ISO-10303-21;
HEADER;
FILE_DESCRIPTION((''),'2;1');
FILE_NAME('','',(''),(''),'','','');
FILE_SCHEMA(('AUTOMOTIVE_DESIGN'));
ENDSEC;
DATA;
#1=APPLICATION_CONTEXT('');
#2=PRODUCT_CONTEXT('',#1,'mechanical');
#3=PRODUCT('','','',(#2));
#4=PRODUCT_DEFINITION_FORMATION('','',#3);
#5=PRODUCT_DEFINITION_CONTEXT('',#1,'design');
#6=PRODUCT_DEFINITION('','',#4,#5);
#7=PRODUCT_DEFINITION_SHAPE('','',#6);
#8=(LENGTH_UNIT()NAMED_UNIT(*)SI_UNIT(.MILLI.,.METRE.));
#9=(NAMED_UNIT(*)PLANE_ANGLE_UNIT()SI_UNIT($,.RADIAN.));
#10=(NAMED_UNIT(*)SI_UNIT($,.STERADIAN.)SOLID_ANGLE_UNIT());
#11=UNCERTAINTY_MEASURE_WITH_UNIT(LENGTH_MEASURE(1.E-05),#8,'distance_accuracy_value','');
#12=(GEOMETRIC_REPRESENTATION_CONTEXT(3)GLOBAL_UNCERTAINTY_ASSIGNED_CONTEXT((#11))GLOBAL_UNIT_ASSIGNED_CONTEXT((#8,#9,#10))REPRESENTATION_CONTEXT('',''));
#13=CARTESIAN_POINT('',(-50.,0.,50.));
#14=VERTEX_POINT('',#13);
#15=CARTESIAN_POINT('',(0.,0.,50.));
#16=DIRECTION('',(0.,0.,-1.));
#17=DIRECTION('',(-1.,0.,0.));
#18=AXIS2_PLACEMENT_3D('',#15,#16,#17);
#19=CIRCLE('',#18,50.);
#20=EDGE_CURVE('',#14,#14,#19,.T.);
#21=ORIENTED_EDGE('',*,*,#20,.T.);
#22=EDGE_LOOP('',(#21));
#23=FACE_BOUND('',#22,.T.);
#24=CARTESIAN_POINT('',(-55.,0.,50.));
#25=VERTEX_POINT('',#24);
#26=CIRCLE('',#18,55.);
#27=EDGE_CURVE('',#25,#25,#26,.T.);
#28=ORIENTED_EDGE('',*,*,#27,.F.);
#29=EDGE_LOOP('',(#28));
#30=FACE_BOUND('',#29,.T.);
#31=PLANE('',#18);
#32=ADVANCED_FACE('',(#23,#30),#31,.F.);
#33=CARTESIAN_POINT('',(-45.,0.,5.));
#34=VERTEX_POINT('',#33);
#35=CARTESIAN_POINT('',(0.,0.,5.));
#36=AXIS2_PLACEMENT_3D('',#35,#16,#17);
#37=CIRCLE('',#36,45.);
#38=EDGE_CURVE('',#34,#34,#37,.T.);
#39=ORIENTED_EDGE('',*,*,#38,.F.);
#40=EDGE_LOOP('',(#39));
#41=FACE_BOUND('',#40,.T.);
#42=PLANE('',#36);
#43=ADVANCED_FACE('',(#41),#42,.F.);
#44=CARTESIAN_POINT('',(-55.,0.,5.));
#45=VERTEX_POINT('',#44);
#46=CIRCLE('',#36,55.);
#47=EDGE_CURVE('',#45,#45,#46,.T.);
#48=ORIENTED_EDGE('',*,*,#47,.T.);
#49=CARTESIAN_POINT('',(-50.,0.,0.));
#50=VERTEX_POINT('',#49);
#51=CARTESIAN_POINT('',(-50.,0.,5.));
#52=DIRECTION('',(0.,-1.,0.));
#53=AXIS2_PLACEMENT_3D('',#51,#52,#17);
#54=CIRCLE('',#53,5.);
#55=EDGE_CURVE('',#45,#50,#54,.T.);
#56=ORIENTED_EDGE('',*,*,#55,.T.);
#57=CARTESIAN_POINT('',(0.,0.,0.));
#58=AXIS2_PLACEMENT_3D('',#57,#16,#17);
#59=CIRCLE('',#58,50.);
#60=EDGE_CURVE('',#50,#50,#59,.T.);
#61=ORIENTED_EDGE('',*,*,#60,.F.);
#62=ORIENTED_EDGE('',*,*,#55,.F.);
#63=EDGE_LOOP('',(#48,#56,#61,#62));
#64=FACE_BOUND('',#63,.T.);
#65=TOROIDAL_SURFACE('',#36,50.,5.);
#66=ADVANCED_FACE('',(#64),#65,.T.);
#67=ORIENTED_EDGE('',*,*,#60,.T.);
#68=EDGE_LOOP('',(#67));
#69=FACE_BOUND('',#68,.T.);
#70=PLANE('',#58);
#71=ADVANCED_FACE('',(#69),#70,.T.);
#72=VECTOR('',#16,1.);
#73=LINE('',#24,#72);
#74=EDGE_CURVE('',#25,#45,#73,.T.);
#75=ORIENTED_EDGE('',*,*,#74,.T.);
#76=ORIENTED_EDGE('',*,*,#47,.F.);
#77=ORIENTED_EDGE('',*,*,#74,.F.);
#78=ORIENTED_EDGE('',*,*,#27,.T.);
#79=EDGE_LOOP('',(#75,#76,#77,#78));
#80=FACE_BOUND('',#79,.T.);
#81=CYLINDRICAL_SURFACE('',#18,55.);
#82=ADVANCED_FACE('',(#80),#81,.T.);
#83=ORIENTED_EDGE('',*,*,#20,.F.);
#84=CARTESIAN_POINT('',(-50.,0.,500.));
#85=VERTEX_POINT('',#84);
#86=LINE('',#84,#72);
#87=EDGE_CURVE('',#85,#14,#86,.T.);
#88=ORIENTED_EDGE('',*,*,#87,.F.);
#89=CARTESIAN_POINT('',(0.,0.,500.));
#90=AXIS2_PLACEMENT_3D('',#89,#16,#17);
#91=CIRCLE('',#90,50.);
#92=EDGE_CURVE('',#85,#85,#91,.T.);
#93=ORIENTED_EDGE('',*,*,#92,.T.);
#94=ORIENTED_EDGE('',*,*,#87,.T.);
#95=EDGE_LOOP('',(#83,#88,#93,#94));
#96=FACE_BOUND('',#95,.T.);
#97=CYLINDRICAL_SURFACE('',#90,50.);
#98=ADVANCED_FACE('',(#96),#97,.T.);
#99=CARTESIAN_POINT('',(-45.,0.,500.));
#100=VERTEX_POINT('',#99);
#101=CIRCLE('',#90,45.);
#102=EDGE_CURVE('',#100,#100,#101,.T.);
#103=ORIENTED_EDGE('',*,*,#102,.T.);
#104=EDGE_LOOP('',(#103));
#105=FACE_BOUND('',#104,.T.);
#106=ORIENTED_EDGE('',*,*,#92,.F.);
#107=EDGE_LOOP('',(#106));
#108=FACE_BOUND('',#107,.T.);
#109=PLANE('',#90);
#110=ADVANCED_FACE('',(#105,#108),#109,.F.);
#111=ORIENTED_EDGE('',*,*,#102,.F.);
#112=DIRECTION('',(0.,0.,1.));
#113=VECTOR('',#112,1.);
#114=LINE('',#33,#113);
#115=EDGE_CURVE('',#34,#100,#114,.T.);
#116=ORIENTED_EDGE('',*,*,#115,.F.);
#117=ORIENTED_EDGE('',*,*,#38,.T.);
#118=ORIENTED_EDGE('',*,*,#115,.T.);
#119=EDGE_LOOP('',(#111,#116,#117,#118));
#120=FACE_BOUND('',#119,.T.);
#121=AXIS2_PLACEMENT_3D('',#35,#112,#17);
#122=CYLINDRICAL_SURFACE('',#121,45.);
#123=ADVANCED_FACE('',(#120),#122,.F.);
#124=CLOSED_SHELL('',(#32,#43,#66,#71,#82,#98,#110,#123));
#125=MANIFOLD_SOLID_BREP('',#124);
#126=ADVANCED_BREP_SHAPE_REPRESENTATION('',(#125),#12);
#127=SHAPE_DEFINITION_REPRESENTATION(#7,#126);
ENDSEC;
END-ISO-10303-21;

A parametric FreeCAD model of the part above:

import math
import FreeCAD as App
import Part
import Sketcher
from FreeCAD import Vector

doc = App.newDocument("Part")
params = doc.addObject("Spreadsheet::Sheet", "Params")
for row, (alias, value) in enumerate([
    ("sketch1_radius", "5 mm"),
    ("sketch1_width", "50 mm"),
    ("sketch1_height", "495 mm"),
    ("revolution_angle", "360 deg"),
], start=1):
    params.set(f"A{row}", alias)
    params.set(f"B{row}", "=" + value)
    params.setAlias(f"B{row}", alias)

body = doc.addObject("PartDesign::Body", "Body")

sketch1 = body.newObject("Sketcher::SketchObject", "Sketch")
sketch1.AttachmentSupport = (doc.getObject("XZ_Plane"), [""])
sketch1.MapMode = "FlatFace"
sketch1.addGeometry([
    Part.LineSegment(Vector(-50, 50, 0), Vector(-55, 50, 0)),
    Part.LineSegment(Vector(-55, 50, 0), Vector(-55, 5, 0)),
    Part.ArcOfCircle(Part.Circle(Vector(-50, 5, 0), Vector(0, 0, 1), 5), math.radians(180), math.radians(270)),
    Part.LineSegment(Vector(-50, 0, 0), Vector(0, 0, 0)),
    Part.LineSegment(Vector(0, 0, 0), Vector(0, 5, 0)),
    Part.LineSegment(Vector(0, 5, 0), Vector(-45, 5, 0)),
    Part.LineSegment(Vector(-45, 5, 0), Vector(-45, 500, 0)),
    Part.LineSegment(Vector(-45, 500, 0), Vector(-50, 500, 0)),
    Part.LineSegment(Vector(-50, 500, 0), Vector(-50, 50, 0)),
], False)
sketch1.addConstraint([
    Sketcher.Constraint("Coincident", 0, 2, 1, 1),
    Sketcher.Constraint("Tangent", 1, 2, 2, 1),
    Sketcher.Constraint("Tangent", 2, 2, 3, 1),
    Sketcher.Constraint("Coincident", 3, 2, 4, 1),
    Sketcher.Constraint("Coincident", 4, 2, 5, 1),
    Sketcher.Constraint("Coincident", 5, 2, 6, 1),
    Sketcher.Constraint("Coincident", 6, 2, 7, 1),
    Sketcher.Constraint("Coincident", 7, 2, 8, 1),
    Sketcher.Constraint("Coincident", 8, 2, 0, 1),
    Sketcher.Constraint("Horizontal", 0),
    Sketcher.Constraint("Vertical", 1),
    Sketcher.Constraint("Horizontal", 3),
    Sketcher.Constraint("Vertical", 4),
    Sketcher.Constraint("Horizontal", 5),
    Sketcher.Constraint("Vertical", 6),
    Sketcher.Constraint("Horizontal", 7),
    Sketcher.Constraint("Vertical", 8),
    Sketcher.Constraint("Coincident", 3, 2, -1, 1),
    Sketcher.Constraint("Horizontal", 1, 2, 4, 2),
    Sketcher.Constraint("Vertical", 2, 2, 7, 2),
    Sketcher.Constraint("Equal", 0, 7),
    Sketcher.Constraint("Equal", 5, 1),
    Sketcher.Constraint("Radius", 2, 5.0),
    Sketcher.Constraint("DistanceX", 3, 1, 3, 2, 50.0),
    Sketcher.Constraint("DistanceY", 6, 1, 6, 2, 495.0),
])
sketch1.setExpression("Constraints[22]", "Params.sketch1_radius")
sketch1.setExpression("Constraints[23]", "Params.sketch1_width")
sketch1.setExpression("Constraints[24]", "Params.sketch1_height")
revolution = body.newObject("PartDesign::Revolution", "Revolution")
revolution.Profile = sketch1
revolution.ReferenceAxis = (sketch1, ["V_Axis"])
revolution.setExpression("Angle", "Params.revolution_angle")

doc.recompute()
